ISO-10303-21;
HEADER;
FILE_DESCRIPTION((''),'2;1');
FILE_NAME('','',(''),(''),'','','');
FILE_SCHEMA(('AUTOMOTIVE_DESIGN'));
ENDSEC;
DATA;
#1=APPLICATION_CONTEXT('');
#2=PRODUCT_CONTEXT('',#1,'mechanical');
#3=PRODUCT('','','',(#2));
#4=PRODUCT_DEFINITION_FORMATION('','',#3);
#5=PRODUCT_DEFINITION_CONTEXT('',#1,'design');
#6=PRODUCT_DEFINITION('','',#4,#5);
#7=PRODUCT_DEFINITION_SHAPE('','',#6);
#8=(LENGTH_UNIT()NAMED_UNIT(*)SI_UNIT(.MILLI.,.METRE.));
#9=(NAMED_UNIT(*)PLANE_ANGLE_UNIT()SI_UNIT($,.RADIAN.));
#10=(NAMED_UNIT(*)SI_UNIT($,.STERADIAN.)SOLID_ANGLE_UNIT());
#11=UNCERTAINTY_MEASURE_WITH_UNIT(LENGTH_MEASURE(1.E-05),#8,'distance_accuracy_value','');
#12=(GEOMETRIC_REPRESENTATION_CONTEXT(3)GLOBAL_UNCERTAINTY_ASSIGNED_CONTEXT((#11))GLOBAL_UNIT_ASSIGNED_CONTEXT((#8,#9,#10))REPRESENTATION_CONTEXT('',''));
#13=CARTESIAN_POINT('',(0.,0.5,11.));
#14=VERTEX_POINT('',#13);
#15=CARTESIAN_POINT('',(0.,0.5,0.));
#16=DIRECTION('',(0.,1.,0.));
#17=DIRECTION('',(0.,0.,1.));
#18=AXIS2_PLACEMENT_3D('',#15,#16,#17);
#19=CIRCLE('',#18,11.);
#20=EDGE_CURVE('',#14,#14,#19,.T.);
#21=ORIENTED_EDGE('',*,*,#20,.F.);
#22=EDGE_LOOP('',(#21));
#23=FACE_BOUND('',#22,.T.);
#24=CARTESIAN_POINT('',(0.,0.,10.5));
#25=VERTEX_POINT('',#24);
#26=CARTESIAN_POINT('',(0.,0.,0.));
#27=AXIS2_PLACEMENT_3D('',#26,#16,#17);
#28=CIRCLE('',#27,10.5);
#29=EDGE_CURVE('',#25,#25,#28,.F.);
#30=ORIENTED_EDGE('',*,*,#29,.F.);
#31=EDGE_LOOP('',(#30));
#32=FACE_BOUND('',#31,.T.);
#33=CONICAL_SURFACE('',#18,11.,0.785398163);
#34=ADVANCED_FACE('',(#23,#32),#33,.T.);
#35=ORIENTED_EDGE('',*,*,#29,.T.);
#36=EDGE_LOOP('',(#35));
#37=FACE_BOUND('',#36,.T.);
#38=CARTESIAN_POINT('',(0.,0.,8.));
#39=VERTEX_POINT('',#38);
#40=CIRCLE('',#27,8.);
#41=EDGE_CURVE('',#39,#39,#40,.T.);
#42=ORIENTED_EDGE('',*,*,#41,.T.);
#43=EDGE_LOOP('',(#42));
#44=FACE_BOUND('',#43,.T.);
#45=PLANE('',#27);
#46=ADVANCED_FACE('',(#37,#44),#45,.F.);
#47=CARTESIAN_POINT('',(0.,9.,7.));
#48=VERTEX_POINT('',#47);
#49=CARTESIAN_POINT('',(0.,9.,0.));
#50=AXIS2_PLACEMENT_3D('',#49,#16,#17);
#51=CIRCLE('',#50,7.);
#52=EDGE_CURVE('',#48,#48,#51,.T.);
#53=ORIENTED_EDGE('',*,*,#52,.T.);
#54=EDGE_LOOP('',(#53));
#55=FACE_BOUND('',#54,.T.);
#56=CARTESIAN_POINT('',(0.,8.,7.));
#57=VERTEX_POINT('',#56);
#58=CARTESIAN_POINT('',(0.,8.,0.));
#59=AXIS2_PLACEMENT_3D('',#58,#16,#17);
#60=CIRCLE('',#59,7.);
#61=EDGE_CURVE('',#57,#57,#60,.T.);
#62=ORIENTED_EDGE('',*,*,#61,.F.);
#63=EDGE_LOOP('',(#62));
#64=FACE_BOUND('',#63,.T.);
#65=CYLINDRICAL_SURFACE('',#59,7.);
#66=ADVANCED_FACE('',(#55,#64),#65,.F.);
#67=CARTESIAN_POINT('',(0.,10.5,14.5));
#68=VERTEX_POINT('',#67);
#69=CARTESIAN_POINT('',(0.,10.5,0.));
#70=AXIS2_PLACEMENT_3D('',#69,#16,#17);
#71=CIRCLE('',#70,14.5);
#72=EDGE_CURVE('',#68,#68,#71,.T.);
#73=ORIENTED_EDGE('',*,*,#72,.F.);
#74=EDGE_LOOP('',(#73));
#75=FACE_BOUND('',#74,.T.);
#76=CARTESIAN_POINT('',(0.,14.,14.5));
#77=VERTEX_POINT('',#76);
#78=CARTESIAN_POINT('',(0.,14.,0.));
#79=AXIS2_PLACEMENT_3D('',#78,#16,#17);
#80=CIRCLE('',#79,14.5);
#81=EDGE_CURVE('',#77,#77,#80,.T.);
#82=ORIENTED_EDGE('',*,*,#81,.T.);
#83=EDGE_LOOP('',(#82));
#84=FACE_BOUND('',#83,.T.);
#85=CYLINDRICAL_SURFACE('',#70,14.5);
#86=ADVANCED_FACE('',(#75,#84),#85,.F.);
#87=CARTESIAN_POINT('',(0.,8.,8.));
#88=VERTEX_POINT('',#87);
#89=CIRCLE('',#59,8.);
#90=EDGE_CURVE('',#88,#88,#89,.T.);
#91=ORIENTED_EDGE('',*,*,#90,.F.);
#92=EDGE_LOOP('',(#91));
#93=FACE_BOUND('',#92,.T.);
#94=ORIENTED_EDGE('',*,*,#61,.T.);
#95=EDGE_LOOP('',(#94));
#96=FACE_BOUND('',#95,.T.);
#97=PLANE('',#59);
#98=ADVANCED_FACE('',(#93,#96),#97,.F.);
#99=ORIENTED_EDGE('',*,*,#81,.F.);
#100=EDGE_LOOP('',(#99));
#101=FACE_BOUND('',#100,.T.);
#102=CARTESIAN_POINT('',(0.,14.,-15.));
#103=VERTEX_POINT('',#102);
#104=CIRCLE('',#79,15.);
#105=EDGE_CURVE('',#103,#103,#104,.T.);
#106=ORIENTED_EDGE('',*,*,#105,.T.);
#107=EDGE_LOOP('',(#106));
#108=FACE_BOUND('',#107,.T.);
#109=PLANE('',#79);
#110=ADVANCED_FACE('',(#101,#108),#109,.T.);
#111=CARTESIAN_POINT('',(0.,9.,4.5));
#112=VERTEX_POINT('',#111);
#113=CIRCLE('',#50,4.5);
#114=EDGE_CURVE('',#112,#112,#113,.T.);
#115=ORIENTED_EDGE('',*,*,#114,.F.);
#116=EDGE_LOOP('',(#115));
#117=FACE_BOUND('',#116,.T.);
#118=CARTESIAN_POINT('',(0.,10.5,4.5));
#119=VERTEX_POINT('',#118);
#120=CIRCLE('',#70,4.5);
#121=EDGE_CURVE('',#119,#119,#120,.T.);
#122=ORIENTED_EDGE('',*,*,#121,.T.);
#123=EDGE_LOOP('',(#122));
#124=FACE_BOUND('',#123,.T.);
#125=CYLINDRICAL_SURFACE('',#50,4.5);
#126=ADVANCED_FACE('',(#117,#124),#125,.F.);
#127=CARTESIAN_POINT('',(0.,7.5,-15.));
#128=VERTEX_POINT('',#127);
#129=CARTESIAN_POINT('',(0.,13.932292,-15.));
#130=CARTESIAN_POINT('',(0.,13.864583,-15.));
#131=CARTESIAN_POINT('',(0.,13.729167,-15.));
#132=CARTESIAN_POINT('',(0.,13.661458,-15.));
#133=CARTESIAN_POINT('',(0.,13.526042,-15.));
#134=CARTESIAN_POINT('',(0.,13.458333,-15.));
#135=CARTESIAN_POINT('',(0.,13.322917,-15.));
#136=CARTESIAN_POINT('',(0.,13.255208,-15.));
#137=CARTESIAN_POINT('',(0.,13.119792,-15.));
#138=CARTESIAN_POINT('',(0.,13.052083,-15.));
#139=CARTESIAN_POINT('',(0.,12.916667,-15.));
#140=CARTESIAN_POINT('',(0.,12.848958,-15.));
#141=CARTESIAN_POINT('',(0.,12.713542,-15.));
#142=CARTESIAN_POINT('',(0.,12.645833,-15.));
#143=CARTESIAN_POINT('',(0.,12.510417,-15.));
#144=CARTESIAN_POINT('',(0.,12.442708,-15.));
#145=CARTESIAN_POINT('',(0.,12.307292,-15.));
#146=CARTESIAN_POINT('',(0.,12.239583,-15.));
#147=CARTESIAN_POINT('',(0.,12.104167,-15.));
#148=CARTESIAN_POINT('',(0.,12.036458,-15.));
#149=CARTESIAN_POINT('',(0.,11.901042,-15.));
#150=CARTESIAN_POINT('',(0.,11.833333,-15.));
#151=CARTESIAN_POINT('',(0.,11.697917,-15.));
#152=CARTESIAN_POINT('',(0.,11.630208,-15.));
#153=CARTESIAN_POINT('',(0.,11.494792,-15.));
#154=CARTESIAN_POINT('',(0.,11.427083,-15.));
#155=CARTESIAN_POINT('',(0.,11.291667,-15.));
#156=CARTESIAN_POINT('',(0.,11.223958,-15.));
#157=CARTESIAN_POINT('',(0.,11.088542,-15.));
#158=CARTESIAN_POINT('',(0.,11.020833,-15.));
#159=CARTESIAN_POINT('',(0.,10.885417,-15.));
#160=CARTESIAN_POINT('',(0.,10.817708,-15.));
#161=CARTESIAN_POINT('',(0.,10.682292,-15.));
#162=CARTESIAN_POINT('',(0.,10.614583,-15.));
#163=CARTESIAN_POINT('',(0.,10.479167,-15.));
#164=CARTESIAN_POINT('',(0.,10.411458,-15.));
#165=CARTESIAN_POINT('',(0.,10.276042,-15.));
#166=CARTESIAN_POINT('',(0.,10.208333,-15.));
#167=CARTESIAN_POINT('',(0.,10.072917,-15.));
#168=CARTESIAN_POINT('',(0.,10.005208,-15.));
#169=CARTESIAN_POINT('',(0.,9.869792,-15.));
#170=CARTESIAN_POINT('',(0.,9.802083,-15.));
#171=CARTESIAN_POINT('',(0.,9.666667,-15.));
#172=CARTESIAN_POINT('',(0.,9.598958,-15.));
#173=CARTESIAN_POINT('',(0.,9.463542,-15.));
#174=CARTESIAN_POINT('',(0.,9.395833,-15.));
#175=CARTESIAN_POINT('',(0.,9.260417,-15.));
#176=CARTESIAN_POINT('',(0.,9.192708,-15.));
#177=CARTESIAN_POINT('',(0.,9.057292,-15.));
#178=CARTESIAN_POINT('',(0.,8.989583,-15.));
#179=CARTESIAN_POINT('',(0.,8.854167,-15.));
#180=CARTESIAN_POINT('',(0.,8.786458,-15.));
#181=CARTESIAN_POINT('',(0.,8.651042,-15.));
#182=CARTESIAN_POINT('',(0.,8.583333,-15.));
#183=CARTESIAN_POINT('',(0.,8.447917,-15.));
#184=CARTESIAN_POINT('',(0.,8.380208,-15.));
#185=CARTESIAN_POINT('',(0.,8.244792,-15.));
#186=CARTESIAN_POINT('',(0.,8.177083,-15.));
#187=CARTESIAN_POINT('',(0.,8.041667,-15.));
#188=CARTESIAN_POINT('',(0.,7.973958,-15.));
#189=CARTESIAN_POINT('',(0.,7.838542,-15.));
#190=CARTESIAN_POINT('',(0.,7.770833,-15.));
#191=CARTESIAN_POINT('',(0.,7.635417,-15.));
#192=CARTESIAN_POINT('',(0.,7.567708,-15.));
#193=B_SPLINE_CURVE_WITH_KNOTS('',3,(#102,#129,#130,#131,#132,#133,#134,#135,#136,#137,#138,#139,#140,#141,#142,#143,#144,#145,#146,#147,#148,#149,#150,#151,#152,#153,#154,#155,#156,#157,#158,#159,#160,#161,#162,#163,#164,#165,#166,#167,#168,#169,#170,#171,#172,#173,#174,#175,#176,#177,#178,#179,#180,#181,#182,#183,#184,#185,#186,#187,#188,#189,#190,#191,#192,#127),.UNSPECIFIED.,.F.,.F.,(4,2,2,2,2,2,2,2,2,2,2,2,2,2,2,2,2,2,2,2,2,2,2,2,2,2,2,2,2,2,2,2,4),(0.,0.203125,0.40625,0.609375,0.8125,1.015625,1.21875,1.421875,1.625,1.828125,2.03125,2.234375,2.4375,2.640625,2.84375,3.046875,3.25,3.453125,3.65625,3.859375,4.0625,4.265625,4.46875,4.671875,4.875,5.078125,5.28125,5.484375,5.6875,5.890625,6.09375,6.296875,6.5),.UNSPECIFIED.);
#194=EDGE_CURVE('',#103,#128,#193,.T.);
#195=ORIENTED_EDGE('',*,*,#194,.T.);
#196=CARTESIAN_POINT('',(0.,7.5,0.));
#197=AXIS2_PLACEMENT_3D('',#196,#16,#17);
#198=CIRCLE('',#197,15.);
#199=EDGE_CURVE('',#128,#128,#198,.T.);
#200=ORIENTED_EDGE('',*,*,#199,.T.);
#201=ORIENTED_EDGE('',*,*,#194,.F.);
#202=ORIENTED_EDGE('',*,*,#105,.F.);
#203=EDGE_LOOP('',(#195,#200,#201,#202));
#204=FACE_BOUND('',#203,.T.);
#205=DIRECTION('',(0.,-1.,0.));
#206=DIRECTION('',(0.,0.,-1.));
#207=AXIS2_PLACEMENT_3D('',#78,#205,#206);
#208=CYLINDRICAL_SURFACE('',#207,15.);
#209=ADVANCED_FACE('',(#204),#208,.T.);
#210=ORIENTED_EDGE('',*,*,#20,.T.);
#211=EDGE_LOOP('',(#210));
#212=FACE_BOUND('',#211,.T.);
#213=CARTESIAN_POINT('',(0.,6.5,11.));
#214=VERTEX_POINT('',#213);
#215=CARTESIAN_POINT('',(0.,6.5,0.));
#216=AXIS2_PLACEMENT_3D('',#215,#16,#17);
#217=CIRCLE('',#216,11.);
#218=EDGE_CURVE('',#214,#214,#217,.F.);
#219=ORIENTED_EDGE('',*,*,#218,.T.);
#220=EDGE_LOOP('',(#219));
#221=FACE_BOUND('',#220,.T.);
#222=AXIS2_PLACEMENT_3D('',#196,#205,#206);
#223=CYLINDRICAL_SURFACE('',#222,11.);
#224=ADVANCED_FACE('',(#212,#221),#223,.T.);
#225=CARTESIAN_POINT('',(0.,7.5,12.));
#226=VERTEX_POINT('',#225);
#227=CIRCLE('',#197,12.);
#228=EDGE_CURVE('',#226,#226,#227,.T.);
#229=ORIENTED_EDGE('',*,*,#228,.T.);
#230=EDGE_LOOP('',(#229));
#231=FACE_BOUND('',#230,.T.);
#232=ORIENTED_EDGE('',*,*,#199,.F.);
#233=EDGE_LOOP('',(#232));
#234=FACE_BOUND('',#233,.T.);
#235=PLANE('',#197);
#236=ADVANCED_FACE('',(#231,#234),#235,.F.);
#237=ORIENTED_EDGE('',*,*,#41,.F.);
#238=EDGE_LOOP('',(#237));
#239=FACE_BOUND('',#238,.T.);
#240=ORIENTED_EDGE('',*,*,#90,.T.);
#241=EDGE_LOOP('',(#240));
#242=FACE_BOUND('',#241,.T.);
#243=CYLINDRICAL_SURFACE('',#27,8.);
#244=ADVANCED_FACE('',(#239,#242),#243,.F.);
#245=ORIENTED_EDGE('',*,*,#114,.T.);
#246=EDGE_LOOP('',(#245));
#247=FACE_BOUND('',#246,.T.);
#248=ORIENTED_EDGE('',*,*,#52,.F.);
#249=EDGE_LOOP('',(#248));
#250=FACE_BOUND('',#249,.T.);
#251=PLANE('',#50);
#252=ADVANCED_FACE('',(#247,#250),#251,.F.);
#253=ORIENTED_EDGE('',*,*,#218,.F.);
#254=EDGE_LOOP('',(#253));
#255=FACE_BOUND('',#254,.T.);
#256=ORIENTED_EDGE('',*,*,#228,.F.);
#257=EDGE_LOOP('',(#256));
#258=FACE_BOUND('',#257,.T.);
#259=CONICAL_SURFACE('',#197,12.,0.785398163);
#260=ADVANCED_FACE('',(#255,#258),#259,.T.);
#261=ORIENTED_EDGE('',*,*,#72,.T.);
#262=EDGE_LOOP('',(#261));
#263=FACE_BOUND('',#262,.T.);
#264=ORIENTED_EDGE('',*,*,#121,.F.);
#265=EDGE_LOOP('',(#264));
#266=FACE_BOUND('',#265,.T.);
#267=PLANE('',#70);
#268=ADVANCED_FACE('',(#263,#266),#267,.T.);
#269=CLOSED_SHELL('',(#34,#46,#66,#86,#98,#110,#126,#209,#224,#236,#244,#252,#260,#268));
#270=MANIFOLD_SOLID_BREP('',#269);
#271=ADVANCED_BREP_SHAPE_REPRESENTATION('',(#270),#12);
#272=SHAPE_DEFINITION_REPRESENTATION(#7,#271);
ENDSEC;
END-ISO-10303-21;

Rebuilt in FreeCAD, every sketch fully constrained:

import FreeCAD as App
import Part
import Sketcher


def edges_at(feature, points):
    """Names of the edges that pass closest to the given points."""
    edges = feature.Shape.Edges
    near = lambda p: min(range(len(edges)), key=lambda i: edges[i].distToShape(Part.Vertex(*p))[0])
    return sorted({f"Edge{near(p) + 1}" for p in points})

doc = App.newDocument("Part")
body = doc.addObject("PartDesign::Body", "Body")

# Sketch on XZ plane
sketch1 = body.newObject("Sketcher::SketchObject", "Sketch")
sketch1.AttachmentSupport = (doc.getObject("XZ_Plane"), [""])
sketch1.MapMode = "FlatFace"
sketch1.addGeometry(Part.Circle(App.Vector(0, 0, 0), App.Vector(0, 0, 1), 11), False)
sketch1.addConstraint([
    Sketcher.Constraint("Coincident", 0, 3, -1, 1),
    Sketcher.Constraint("Diameter", 0, 22.0),
])
pad1 = body.newObject("PartDesign::Pad", "Pad")
pad1.Profile = sketch1
pad1.Length = 7.5
pad1.Reversed = True

# Sketch on XZ plane
sketch2 = body.newObject("Sketcher::SketchObject", "Sketch001")
sketch2.AttachmentSupport = (doc.getObject("XZ_Plane"), [""])
sketch2.MapMode = "FlatFace"
sketch2.AttachmentOffset = App.Placement(App.Vector(0, 0, -7.5), App.Rotation())
sketch2.addGeometry(Part.Circle(App.Vector(0, 0, 0), App.Vector(0, 0, 1), 15), False)
sketch2.addConstraint([
    Sketcher.Constraint("Coincident", 0, 3, -1, 1),
    Sketcher.Constraint("Diameter", 0, 30.0),
])
pad2 = body.newObject("PartDesign::Pad", "Pad001")
pad2.Profile = sketch2
pad2.Length = 6.5
pad2.Reversed = True
doc.recompute()

chamfer = body.newObject("PartDesign::Chamfer", "Chamfer")
chamfer.Base = (pad2, edges_at(pad2, [(0, 0, -11)]))
chamfer.Size = 0.5
doc.recompute()

chamfer2 = body.newObject("PartDesign::Chamfer", "Chamfer001")
chamfer2.Base = (chamfer, edges_at(chamfer, [(0, 7.5, -11)]))
chamfer2.Size = 1

# Sketch on XZ plane
sketch3 = body.newObject("Sketcher::SketchObject", "Sketch002")
sketch3.AttachmentSupport = (doc.getObject("XZ_Plane"), [""])
sketch3.MapMode = "FlatFace"
sketch3.AttachmentOffset = App.Placement(App.Vector(0, 0, -14), App.Rotation())
sketch3.addGeometry(Part.Circle(App.Vector(0, 0, 0), App.Vector(0, 0, 1), 14.5), False)
sketch3.addConstraint([
    Sketcher.Constraint("Coincident", 0, 3, -1, 1),
    Sketcher.Constraint("Diameter", 0, 29.0),
])
pocket1 = body.newObject("PartDesign::Pocket", "Pocket")
pocket1.Profile = sketch3
pocket1.Length = 3.5
pocket1.Reversed = True

# Sketch on XZ plane
sketch4 = body.newObject("Sketcher::SketchObject", "Sketch003")
sketch4.AttachmentSupport = (doc.getObject("XZ_Plane"), [""])
sketch4.MapMode = "FlatFace"
sketch4.AttachmentOffset = App.Placement(App.Vector(0, 0, -10.5), App.Rotation())
sketch4.addGeometry(Part.Circle(App.Vector(0, 0, 0), App.Vector(0, 0, 1), 4.5), False)
sketch4.addConstraint([
    Sketcher.Constraint("Coincident", 0, 3, -1, 1),
    Sketcher.Constraint("Diameter", 0, 9.0),
])
pocket2 = body.newObject("PartDesign::Pocket", "Pocket001")
pocket2.Profile = sketch4
pocket2.Length = 1.5
pocket2.Reversed = True

# Sketch on XZ plane
sketch5 = body.newObject("Sketcher::SketchObject", "Sketch004")
sketch5.AttachmentSupport = (doc.getObject("XZ_Plane"), [""])
sketch5.MapMode = "FlatFace"
sketch5.AttachmentOffset = App.Placement(App.Vector(0, 0, -9), App.Rotation())
sketch5.addGeometry(Part.Circle(App.Vector(0, 0, 0), App.Vector(0, 0, 1), 7), False)
sketch5.addConstraint([
    Sketcher.Constraint("Coincident", 0, 3, -1, 1),
    Sketcher.Constraint("Diameter", 0, 14.0),
])
pocket3 = body.newObject("PartDesign::Pocket", "Pocket002")
pocket3.Profile = sketch5
pocket3.Length = 1
pocket3.Reversed = True

# Sketch on XZ plane
sketch6 = body.newObject("Sketcher::SketchObject", "Sketch005")
sketch6.AttachmentSupport = (doc.getObject("XZ_Plane"), [""])
sketch6.MapMode = "FlatFace"
sketch6.AttachmentOffset = App.Placement(App.Vector(0, 0, -8), App.Rotation())
sketch6.addGeometry(Part.Circle(App.Vector(0, 0, 0), App.Vector(0, 0, 1), 8), False)
sketch6.addConstraint([
    Sketcher.Constraint("Coincident", 0, 3, -1, 1),
    Sketcher.Constraint("Diameter", 0, 16.0),
])
pocket4 = body.newObject("PartDesign::Pocket", "Pocket003")
pocket4.Profile = sketch6
pocket4.Type = "ThroughAll"
pocket4.Reversed = True

doc.recompute()
